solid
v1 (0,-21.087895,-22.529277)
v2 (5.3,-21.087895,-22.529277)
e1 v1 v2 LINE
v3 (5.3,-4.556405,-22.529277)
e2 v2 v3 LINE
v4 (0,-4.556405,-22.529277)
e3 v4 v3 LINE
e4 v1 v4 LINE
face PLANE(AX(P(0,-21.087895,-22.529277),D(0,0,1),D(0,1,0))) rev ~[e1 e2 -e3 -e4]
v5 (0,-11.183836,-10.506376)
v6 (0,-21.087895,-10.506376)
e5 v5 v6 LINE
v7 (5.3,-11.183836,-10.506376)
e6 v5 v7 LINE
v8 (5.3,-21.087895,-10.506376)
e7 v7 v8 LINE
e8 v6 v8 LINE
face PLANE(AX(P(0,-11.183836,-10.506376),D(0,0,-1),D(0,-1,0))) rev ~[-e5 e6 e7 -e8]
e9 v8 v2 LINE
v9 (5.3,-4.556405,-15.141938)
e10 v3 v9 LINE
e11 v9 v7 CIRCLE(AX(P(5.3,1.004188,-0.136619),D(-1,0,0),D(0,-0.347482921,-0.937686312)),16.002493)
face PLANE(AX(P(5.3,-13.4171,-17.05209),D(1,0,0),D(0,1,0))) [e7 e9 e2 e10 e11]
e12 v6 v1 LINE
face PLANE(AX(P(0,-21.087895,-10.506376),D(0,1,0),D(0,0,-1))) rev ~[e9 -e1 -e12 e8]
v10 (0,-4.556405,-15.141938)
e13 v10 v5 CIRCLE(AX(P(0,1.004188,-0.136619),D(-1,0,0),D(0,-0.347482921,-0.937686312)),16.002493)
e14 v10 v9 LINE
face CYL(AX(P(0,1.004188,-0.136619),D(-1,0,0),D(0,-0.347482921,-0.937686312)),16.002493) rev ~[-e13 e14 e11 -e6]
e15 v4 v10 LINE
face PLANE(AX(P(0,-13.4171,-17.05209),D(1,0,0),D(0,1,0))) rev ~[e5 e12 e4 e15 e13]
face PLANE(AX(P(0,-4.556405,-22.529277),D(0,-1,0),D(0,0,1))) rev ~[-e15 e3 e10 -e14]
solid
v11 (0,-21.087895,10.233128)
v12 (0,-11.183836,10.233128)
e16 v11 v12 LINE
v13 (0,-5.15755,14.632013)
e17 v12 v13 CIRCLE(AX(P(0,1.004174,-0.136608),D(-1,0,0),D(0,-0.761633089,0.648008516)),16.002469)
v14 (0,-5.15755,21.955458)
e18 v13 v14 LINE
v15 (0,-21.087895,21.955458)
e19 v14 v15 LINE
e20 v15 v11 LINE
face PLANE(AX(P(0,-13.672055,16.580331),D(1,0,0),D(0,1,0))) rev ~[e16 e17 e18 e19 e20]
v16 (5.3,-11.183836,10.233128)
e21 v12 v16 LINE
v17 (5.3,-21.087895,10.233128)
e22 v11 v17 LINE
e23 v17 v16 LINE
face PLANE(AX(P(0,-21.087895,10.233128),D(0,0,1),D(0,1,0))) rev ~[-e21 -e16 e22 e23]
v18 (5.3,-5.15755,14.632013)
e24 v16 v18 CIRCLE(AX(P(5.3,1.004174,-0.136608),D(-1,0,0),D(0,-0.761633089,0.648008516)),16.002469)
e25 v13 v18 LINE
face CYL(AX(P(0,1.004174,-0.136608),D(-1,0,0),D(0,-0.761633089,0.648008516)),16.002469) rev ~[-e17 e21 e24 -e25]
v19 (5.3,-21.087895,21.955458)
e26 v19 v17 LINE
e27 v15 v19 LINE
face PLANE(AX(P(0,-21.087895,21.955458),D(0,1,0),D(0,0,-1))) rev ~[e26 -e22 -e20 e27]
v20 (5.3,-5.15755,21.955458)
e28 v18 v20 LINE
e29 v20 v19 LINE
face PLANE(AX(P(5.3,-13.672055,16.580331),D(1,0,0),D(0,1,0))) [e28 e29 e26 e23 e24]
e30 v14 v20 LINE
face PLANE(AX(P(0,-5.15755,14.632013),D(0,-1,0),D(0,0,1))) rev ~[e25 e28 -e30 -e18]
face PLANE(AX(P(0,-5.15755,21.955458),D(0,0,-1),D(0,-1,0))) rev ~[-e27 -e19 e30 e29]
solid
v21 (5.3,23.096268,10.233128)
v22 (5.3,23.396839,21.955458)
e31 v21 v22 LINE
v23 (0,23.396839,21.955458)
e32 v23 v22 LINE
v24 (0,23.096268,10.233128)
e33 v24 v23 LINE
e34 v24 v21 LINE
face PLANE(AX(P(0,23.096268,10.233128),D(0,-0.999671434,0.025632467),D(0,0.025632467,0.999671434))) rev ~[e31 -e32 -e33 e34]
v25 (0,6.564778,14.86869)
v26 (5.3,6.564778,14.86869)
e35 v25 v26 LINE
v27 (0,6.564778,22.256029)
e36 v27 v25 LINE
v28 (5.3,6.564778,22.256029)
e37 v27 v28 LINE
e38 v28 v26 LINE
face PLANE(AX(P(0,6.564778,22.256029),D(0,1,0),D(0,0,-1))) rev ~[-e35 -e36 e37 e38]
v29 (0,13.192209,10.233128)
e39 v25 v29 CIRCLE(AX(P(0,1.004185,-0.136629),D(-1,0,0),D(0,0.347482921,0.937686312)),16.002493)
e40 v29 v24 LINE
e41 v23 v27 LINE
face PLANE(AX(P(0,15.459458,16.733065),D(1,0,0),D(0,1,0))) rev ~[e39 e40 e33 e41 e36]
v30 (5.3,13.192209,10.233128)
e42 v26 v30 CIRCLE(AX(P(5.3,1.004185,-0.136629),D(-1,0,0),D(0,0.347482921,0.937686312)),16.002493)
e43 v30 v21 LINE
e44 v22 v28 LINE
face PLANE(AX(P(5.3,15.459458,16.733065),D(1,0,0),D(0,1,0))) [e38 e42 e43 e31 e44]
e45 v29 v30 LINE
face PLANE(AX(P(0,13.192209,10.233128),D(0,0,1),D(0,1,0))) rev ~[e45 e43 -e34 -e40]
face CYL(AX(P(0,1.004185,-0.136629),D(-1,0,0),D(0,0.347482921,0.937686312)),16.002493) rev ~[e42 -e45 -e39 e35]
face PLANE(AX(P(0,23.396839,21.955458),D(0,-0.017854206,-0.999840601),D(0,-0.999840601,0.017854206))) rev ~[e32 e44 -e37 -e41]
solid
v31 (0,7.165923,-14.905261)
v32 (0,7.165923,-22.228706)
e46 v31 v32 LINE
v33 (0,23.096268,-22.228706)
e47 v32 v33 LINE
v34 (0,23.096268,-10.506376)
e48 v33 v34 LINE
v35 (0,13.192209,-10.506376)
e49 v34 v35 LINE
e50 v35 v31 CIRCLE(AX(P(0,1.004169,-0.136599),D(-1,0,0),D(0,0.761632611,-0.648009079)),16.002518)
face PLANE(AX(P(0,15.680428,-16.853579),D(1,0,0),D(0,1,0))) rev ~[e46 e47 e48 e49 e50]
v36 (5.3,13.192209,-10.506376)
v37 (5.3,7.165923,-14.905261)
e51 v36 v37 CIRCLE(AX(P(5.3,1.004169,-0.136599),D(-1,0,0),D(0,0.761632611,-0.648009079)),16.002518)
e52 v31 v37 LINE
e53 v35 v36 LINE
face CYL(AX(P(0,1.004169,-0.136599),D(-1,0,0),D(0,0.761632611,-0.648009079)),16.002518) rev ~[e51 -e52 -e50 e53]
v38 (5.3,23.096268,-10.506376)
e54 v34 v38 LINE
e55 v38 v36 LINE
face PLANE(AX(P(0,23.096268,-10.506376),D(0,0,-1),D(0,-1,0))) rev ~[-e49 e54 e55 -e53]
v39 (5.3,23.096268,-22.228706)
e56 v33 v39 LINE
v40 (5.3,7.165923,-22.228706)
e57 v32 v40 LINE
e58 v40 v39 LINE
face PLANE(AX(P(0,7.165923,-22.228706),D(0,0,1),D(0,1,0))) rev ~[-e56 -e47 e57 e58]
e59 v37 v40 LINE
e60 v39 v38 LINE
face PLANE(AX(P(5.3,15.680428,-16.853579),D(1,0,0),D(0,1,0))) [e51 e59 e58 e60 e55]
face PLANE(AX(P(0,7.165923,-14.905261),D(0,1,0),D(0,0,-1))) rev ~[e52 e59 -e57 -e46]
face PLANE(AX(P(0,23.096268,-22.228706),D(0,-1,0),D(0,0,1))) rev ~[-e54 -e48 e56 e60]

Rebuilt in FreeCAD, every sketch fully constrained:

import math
import FreeCAD as App
import Part
import Sketcher
from FreeCAD import Vector

doc = App.newDocument("Part")
body = doc.addObject("PartDesign::Body", "Body")
body.AllowCompound = True

# Sketch on YZ plane
sketch1 = body.newObject("Sketcher::SketchObject", "Sketch")
sketch1.AttachmentSupport = (doc.getObject("YZ_Plane"), [""])
sketch1.MapMode = "FlatFace"
sketch1.addGeometry([
    Part.ArcOfCircle(Part.Circle(Vector(1, 0, 0), Vector(0, 0, 1), 16), math.radians(40), math.radians(70)),  # 0
    Part.LineSegment(Vector(13, 10, 0), Vector(23, 10, 0)),  # 1
    Part.LineSegment(Vector(23, 10, 0), Vector(23, 22, 0)),  # 2
    Part.LineSegment(Vector(23, 22, 0), Vector(7, 22, 0)),  # 3
    Part.LineSegment(Vector(7, 22, 0), Vector(7, 15, 0)),  # 4
    Part.ArcOfCircle(Part.Circle(Vector(1, 0, 0), Vector(0, 0, 1), 16), math.radians(113), math.radians(140)),  # 5
    Part.LineSegment(Vector(-5, 15, 0), Vector(-5, 22, 0)),  # 6
    Part.LineSegment(Vector(-5, 22, 0), Vector(-21, 22, 0)),  # 7
    Part.LineSegment(Vector(-21, 22, 0), Vector(-21, 10, 0)),  # 8
    Part.LineSegment(Vector(-21, 10, 0), Vector(-11, 10, 0)),  # 9
    Part.LineSegment(Vector(23, -11, 0), Vector(13, -11, 0)),  # 10
    Part.ArcOfCircle(Part.Circle(Vector(1, 0, 0), Vector(0, 0, 1), 16), math.radians(-67), math.radians(-40)),  # 11
    Part.LineSegment(Vector(7, -15, 0), Vector(7, -22, 0)),  # 12
    Part.LineSegment(Vector(7, -22, 0), Vector(23, -22, 0)),  # 13
    Part.LineSegment(Vector(23, -22, 0), Vector(23, -11, 0)),  # 14
    Part.LineSegment(Vector(-5, -23, 0), Vector(-5, -15, 0)),  # 15
    Part.ArcOfCircle(Part.Circle(Vector(1, 0, 0), Vector(0, 0, 1), 16), math.radians(-140), math.radians(-110)),  # 16
    Part.LineSegment(Vector(-11, -11, 0), Vector(-21, -11, 0)),  # 17
    Part.LineSegment(Vector(-21, -11, 0), Vector(-21, -23, 0)),  # 18
    Part.LineSegment(Vector(-21, -23, 0), Vector(-5, -23, 0)),  # 19
], False)
sketch1.addConstraint([
    Sketcher.Constraint("Coincident", 0, 1, 1, 1),
    Sketcher.Constraint("Coincident", 1, 2, 2, 1),
    Sketcher.Constraint("Coincident", 2, 2, 3, 1),
    Sketcher.Constraint("Coincident", 3, 2, 4, 1),
    Sketcher.Constraint("Coincident", 4, 2, 0, 2),
    Sketcher.Constraint("Coincident", 5, 1, 6, 1),
    Sketcher.Constraint("Coincident", 6, 2, 7, 1),
    Sketcher.Constraint("Coincident", 7, 2, 8, 1),
    Sketcher.Constraint("Coincident", 8, 2, 9, 1),
    Sketcher.Constraint("Coincident", 9, 2, 5, 2),
    Sketcher.Constraint("Coincident", 10, 2, 11, 2),
    Sketcher.Constraint("Coincident", 11, 1, 12, 1),
    Sketcher.Constraint("Coincident", 12, 2, 13, 1),
    Sketcher.Constraint("Coincident", 13, 2, 14, 1),
    Sketcher.Constraint("Coincident", 14, 2, 10, 1),
    Sketcher.Constraint("Coincident", 15, 2, 16, 2),
    Sketcher.Constraint("Coincident", 16, 1, 17, 1),
    Sketcher.Constraint("Coincident", 17, 2, 18, 1),
    Sketcher.Constraint("Coincident", 18, 2, 19, 1),
    Sketcher.Constraint("Coincident", 19, 2, 15, 1),
    Sketcher.Constraint("Horizontal", 1),
    Sketcher.Constraint("Vertical", 4),
    Sketcher.Constraint("Vertical", 6),
    Sketcher.Constraint("Horizontal", 7),
    Sketcher.Constraint("Vertical", 8),
    Sketcher.Constraint("Horizontal", 9),
    Sketcher.Constraint("Horizontal", 10),
    Sketcher.Constraint("Vertical", 12),
    Sketcher.Constraint("Horizontal", 13),
    Sketcher.Constraint("Vertical", 14),
    Sketcher.Constraint("Vertical", 15),
    Sketcher.Constraint("Horizontal", 17),
    Sketcher.Constraint("Vertical", 18),
    Sketcher.Constraint("Horizontal", 19),
    Sketcher.Constraint("Coincident", 16, 3, 0, 3),
    Sketcher.Constraint("Equal", 0, 16),
    Sketcher.Constraint("Horizontal", 2, 2, 6, 2),
    Sketcher.Constraint("Horizontal", 1, 2, 8, 2),
    Sketcher.Constraint("Horizontal", 14, 2, 16, 1),
    Sketcher.Constraint("Vertical", 0, 1, 10, 2),
    Sketcher.Constraint("Vertical", 1, 2, 13, 2),
    Sketcher.Constraint("Vertical", 9, 2, 16, 1),
    Sketcher.Constraint("Vertical", 8, 2, 17, 2),
    Sketcher.Constraint("Equal", 1, 9),
    Sketcher.Constraint("Equal", 7, 13),
    Sketcher.Constraint("Equal", 6, 12),
    Sketcher.Constraint("Equal", 8, 14),
    Sketcher.Constraint("Equal", 4, 15),
    Sketcher.Constraint("Radius", 5, 16.002469),
    Sketcher.Constraint("Radius", 11, 16.002518),
    Sketcher.Constraint("DistanceY", 18, 2, 18, 1, 12.022901),
    Sketcher.Constraint("Radius", 0, 16.002493),
    Sketcher.Constraint("DistanceX", 1, 1, 1, 2, 9.904059),
    Sketcher.Constraint("DistanceX", 19, 1, 19, 2, 16.53149),
    Sketcher.Constraint("DistanceY", 4, 2, 4, 1, 7.387339),
    Sketcher.Constraint("DistanceY", 8, 2, 8, 1, 11.72233),
    Sketcher.Constraint("DistanceY", 11, 3, -1, 1, 0.136599),
    Sketcher.Constraint("DistanceX", 11, 3, 1, 2, 22.092099),
    Sketcher.Constraint("DistanceY", 0, 1, 3, 2, 12.022901),
    Sketcher.Constraint("DistanceX", 7, 2, 7, 1, 15.930345),
    Sketcher.Constraint("DistanceY", 5, 3, -1, 1, 0.136608),
    Sketcher.Constraint("DistanceX", -1, 1, 11, 3, 1.004169),
    Sketcher.Constraint("DistanceX", -1, 1, 2, 2, 23.396839),
])
pad1 = body.newObject("PartDesign::Pad", "Pad")
pad1.Profile = sketch1
pad1.Length = 5.3

doc.recompute()
